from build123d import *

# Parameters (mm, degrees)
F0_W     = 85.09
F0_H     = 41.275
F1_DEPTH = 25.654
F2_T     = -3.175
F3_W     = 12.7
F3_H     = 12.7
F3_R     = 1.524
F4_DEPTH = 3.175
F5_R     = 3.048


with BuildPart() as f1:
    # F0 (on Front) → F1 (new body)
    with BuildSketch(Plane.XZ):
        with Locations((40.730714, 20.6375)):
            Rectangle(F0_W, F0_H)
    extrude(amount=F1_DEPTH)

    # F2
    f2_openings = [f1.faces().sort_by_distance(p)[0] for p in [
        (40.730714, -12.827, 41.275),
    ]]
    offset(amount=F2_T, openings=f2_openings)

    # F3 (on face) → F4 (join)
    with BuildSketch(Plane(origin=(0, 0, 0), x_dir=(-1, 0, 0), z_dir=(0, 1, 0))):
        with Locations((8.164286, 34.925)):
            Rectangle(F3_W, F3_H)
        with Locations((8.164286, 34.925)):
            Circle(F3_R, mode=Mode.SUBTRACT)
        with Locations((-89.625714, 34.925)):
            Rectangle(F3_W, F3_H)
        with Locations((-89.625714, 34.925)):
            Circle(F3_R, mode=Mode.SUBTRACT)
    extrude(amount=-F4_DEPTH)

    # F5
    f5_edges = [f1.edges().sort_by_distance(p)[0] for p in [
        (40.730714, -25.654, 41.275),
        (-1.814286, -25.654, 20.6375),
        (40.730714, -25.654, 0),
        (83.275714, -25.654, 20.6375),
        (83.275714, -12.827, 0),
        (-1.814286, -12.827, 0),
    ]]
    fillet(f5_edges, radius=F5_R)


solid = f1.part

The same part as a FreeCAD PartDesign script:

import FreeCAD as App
import Part
import Sketcher
from FreeCAD import Vector
Q = App.Units.Quantity


def edges_at(feature, points):
    """Names of the edges that pass closest to the given points."""
    edges = feature.Shape.Edges
    near = lambda p: min(range(len(edges)), key=lambda i: edges[i].distToShape(Part.Vertex(*p))[0])
    return sorted({f"Edge{near(p) + 1}" for p in points})


def faces_at(feature, points):
    """Names of the faces that lie closest to the given points."""
    faces = feature.Shape.Faces
    near = lambda p: min(range(len(faces)), key=lambda i: faces[i].distToShape(Part.Vertex(*p))[0])
    return sorted({f"Face{near(p) + 1}" for p in points})


def add_polygon(sketch, points):
    """Adds a closed chain of lines whose ends are joined by coincident constraints."""
    first, n = sketch.GeometryCount, len(points)
    for a, b in zip(points, points[1:] + points[:1]):
        sketch.addGeometry(Part.LineSegment(App.Vector(*a, 0), App.Vector(*b, 0)), False)
    for i in range(n):
        sketch.addConstraint(Sketcher.Constraint("Coincident", first + i, 2, first + (i + 1) % n, 1))

doc = App.newDocument("Part")
params = doc.addObject("Spreadsheet::Sheet", "Params")
for row, (alias, value) in enumerate([
    ("sketch1_width", "3.35 in"),
    ("sketch1_height", "1.625 in"),
    ("pad1_length", "1.01 in"),
    ("thickness_wall", "0.125 in"),
    ("sketch2_diameter", "0.12 in"),
    ("sketch2_width", "0.5 in"),
    ("pad2_length", "0.125 in"),
    ("fillet_radius", "0.12 in"),
], start=1):
    params.set(f"A{row}", alias)
    params.set(f"B{row}", "=" + value)
    params.setAlias(f"B{row}", alias)

body = doc.addObject("PartDesign::Body", "Body")

# Sketch on XZ plane
sketch1 = doc.addObject("Sketcher::SketchObject", "Sketch")
body.addObject(sketch1)
sketch1.AttachmentSupport = (doc.XZ_Plane, [""])
sketch1.MapMode = "FlatFace"
add_polygon(sketch1, [(-1.814286, 41.275), (-1.814286, 0), (83.275714, 0), (83.275714, 41.275)])  # lines 0-3
sketch1.addConstraint([
    Sketcher.Constraint("Vertical", 0),
    Sketcher.Constraint("Horizontal", 1),
    Sketcher.Constraint("Vertical", 2),
    Sketcher.Constraint("Horizontal", 3),
    Sketcher.Constraint("PointOnObject", 0, 2, -1),
    Sketcher.Constraint("DistanceX", 1, 1, 1, 2, Q("3.35 in")),
    Sketcher.Constraint("DistanceY", 0, 2, 0, 1, Q("1.625 in")),
    Sketcher.Constraint("DistanceX", 0, 2, -1, 1, Q("1.814286 mm")),
])
sketch1.setExpression("Constraints[9]", "Params.sketch1_width")
sketch1.setExpression("Constraints[10]", "Params.sketch1_height")
pad1 = doc.addObject("PartDesign::Pad", "Pad")
body.addObject(pad1)
pad1.Profile = sketch1
pad1.setExpression("Length", "Params.pad1_length")
doc.recompute()

thickness = doc.addObject("PartDesign::Thickness", "Thickness")
body.addObject(thickness)
thickness.Base = (pad1, faces_at(pad1, [(40.731, -12.827, 41.275)]))
thickness.setExpression("Value", "Params.thickness_wall")
thickness.Reversed = True
thickness.Join = "Arc"

# Sketch on XZ plane
sketch2 = doc.addObject("Sketcher::SketchObject", "Sketch001")
body.addObject(sketch2)
sketch2.AttachmentSupport = (doc.XZ_Plane, [""])
sketch2.MapMode = "FlatFace"
add_polygon(sketch2, [(-1.814286, 41.275), (-1.814286, 28.575), (-14.514286, 28.575), (-14.514286, 41.275)])  # lines 0-3
sketch2.addGeometry(Part.Circle(Vector(-8.164286, 34.925, 0), Vector(0, 0, 1), 1.524), False)  # 4
add_polygon(sketch2, [(95.975714, 41.275), (95.975714, 28.575), (83.275714, 28.575), (83.275714, 41.275)])  # lines 5-8
sketch2.addGeometry(Part.Circle(Vector(89.625714, 34.925, 0), Vector(0, 0, 1), 1.524), False)  # 9
sketch2.addConstraint([
    Sketcher.Constraint("Vertical", 0),
    Sketcher.Constraint("Horizontal", 1),
    Sketcher.Constraint("Vertical", 2),
    Sketcher.Constraint("Horizontal", 3),
    Sketcher.Constraint("Vertical", 5),
    Sketcher.Constraint("Horizontal", 6),
    Sketcher.Constraint("Vertical", 7),
    Sketcher.Constraint("Horizontal", 8),
    Sketcher.Constraint("Equal", 4, 9),
    Sketcher.Constraint("Horizontal", 4, 3, 9, 3),
    Sketcher.Constraint("Horizontal", 1, 2, 5, 2),
    Sketcher.Constraint("Horizontal", 3, 2, 7, 2),
    Sketcher.Constraint("Equal", 3, 6),
    Sketcher.Constraint("Equal", 8, 0),
    Sketcher.Constraint("Diameter", 4, Q("0.12 in")),
    Sketcher.Constraint("DistanceX", 1, 2, 1, 1, Q("0.5 in")),
    Sketcher.Constraint("DistanceX", 0, 2, 9, 3, Q("3.6 in")),
    Sketcher.Constraint("DistanceX", 4, 3, 5, 2, Q("4.1 in")),
    Sketcher.Constraint("DistanceX", 4, 3, 9, 3, Q("3.85 in")),
    Sketcher.Constraint("DistanceY", 0, 2, 4, 3, Q("0.25 in")),
    Sketcher.Constraint("DistanceY", -1, 1, 4, 3, Q("1.375 in")),
    Sketcher.Constraint("DistanceX", 4, 3, -1, 1, Q("8.164286 mm")),
])
sketch2.setExpression("Constraints[22]", "Params.sketch2_diameter")
sketch2.setExpression("Constraints[23]", "Params.sketch2_width")
pad2 = doc.addObject("PartDesign::Pad", "Pad001")
body.addObject(pad2)
pad2.Profile = sketch2
pad2.setExpression("Length", "Params.pad2_length")
doc.recompute()

fillet = doc.addObject("PartDesign::Fillet", "Fillet")
body.addObject(fillet)
fillet.Base = (pad2, edges_at(pad2, [
    (40.731, -25.654, 41.275),
    (-1.814, -25.654, 20.637),
    (40.731, -25.654, 0),
    (83.276, -25.654, 20.637),
    (83.276, -12.827, 0),
    (-1.814, -12.827, 0),
]))
fillet.setExpression("Radius", "Params.fillet_radius")

doc.recompute()
